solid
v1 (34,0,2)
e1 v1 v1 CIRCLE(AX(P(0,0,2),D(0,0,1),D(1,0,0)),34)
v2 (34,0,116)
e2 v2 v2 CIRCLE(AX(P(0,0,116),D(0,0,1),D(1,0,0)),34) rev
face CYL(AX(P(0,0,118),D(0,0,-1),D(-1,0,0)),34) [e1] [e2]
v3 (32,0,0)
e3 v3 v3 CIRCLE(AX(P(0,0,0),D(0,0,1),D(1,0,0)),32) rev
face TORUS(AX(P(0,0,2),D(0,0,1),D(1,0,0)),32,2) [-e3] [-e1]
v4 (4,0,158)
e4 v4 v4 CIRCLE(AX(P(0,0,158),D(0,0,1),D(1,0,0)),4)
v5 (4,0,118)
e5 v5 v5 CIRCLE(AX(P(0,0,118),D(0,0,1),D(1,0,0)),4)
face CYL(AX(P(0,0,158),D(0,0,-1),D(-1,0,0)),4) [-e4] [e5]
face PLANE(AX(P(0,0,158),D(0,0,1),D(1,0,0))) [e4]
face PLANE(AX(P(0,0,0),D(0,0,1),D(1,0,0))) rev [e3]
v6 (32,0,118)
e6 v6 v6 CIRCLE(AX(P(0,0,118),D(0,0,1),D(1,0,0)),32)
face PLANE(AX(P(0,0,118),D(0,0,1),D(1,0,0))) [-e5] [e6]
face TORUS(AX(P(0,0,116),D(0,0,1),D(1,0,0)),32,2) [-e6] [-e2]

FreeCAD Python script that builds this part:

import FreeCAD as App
import Part
import Sketcher

V = App.Vector


def edges_at(feature, points):
    """Names of the edges that pass closest to the given points."""
    edges = feature.Shape.Edges
    near = lambda p: min(range(len(edges)), key=lambda i: edges[i].distToShape(Part.Vertex(*p))[0])
    return sorted({f"Edge{near(p) + 1}" for p in points})

doc = App.newDocument("Part")
body = doc.addObject("PartDesign::Body", "Body")

sketch1 = body.newObject("Sketcher::SketchObject", "Sketch")
sketch1.AttachmentSupport = (doc.getObject("XY_Plane"), [""])
sketch1.MapMode = "FlatFace"
sketch1.addGeometry(Part.Circle(V(0, 0, 0), V(0, 0, 1), 34), False)
sketch1.addConstraint([
    Sketcher.Constraint("Coincident", 0, 3, -1, 1),
    Sketcher.Constraint("Diameter", 0, 68.0),
])
pad1 = body.newObject("PartDesign::Pad", "Pad")
pad1.Profile = sketch1
pad1.Length = 118

sketch2 = body.newObject("Sketcher::SketchObject", "Sketch001")
sketch2.AttachmentSupport = (doc.getObject("XY_Plane"), [""])
sketch2.MapMode = "FlatFace"
sketch2.AttachmentOffset = App.Placement(V(0, 0, 118), App.Rotation())
sketch2.addGeometry(Part.Circle(V(0, 0, 0), V(0, 0, 1), 4), False)
sketch2.addConstraint([
    Sketcher.Constraint("Coincident", 0, 3, -1, 1),
    Sketcher.Constraint("Diameter", 0, 8.0),
])
pad2 = body.newObject("PartDesign::Pad", "Pad001")
pad2.Profile = sketch2
pad2.Length = 40
doc.recompute()

fillet = body.newObject("PartDesign::Fillet", "Fillet")
fillet.Base = (pad2, edges_at(pad2, [(-34, 0, 0), (-34, 0, 118)]))
fillet.Radius = 2

doc.recompute()
